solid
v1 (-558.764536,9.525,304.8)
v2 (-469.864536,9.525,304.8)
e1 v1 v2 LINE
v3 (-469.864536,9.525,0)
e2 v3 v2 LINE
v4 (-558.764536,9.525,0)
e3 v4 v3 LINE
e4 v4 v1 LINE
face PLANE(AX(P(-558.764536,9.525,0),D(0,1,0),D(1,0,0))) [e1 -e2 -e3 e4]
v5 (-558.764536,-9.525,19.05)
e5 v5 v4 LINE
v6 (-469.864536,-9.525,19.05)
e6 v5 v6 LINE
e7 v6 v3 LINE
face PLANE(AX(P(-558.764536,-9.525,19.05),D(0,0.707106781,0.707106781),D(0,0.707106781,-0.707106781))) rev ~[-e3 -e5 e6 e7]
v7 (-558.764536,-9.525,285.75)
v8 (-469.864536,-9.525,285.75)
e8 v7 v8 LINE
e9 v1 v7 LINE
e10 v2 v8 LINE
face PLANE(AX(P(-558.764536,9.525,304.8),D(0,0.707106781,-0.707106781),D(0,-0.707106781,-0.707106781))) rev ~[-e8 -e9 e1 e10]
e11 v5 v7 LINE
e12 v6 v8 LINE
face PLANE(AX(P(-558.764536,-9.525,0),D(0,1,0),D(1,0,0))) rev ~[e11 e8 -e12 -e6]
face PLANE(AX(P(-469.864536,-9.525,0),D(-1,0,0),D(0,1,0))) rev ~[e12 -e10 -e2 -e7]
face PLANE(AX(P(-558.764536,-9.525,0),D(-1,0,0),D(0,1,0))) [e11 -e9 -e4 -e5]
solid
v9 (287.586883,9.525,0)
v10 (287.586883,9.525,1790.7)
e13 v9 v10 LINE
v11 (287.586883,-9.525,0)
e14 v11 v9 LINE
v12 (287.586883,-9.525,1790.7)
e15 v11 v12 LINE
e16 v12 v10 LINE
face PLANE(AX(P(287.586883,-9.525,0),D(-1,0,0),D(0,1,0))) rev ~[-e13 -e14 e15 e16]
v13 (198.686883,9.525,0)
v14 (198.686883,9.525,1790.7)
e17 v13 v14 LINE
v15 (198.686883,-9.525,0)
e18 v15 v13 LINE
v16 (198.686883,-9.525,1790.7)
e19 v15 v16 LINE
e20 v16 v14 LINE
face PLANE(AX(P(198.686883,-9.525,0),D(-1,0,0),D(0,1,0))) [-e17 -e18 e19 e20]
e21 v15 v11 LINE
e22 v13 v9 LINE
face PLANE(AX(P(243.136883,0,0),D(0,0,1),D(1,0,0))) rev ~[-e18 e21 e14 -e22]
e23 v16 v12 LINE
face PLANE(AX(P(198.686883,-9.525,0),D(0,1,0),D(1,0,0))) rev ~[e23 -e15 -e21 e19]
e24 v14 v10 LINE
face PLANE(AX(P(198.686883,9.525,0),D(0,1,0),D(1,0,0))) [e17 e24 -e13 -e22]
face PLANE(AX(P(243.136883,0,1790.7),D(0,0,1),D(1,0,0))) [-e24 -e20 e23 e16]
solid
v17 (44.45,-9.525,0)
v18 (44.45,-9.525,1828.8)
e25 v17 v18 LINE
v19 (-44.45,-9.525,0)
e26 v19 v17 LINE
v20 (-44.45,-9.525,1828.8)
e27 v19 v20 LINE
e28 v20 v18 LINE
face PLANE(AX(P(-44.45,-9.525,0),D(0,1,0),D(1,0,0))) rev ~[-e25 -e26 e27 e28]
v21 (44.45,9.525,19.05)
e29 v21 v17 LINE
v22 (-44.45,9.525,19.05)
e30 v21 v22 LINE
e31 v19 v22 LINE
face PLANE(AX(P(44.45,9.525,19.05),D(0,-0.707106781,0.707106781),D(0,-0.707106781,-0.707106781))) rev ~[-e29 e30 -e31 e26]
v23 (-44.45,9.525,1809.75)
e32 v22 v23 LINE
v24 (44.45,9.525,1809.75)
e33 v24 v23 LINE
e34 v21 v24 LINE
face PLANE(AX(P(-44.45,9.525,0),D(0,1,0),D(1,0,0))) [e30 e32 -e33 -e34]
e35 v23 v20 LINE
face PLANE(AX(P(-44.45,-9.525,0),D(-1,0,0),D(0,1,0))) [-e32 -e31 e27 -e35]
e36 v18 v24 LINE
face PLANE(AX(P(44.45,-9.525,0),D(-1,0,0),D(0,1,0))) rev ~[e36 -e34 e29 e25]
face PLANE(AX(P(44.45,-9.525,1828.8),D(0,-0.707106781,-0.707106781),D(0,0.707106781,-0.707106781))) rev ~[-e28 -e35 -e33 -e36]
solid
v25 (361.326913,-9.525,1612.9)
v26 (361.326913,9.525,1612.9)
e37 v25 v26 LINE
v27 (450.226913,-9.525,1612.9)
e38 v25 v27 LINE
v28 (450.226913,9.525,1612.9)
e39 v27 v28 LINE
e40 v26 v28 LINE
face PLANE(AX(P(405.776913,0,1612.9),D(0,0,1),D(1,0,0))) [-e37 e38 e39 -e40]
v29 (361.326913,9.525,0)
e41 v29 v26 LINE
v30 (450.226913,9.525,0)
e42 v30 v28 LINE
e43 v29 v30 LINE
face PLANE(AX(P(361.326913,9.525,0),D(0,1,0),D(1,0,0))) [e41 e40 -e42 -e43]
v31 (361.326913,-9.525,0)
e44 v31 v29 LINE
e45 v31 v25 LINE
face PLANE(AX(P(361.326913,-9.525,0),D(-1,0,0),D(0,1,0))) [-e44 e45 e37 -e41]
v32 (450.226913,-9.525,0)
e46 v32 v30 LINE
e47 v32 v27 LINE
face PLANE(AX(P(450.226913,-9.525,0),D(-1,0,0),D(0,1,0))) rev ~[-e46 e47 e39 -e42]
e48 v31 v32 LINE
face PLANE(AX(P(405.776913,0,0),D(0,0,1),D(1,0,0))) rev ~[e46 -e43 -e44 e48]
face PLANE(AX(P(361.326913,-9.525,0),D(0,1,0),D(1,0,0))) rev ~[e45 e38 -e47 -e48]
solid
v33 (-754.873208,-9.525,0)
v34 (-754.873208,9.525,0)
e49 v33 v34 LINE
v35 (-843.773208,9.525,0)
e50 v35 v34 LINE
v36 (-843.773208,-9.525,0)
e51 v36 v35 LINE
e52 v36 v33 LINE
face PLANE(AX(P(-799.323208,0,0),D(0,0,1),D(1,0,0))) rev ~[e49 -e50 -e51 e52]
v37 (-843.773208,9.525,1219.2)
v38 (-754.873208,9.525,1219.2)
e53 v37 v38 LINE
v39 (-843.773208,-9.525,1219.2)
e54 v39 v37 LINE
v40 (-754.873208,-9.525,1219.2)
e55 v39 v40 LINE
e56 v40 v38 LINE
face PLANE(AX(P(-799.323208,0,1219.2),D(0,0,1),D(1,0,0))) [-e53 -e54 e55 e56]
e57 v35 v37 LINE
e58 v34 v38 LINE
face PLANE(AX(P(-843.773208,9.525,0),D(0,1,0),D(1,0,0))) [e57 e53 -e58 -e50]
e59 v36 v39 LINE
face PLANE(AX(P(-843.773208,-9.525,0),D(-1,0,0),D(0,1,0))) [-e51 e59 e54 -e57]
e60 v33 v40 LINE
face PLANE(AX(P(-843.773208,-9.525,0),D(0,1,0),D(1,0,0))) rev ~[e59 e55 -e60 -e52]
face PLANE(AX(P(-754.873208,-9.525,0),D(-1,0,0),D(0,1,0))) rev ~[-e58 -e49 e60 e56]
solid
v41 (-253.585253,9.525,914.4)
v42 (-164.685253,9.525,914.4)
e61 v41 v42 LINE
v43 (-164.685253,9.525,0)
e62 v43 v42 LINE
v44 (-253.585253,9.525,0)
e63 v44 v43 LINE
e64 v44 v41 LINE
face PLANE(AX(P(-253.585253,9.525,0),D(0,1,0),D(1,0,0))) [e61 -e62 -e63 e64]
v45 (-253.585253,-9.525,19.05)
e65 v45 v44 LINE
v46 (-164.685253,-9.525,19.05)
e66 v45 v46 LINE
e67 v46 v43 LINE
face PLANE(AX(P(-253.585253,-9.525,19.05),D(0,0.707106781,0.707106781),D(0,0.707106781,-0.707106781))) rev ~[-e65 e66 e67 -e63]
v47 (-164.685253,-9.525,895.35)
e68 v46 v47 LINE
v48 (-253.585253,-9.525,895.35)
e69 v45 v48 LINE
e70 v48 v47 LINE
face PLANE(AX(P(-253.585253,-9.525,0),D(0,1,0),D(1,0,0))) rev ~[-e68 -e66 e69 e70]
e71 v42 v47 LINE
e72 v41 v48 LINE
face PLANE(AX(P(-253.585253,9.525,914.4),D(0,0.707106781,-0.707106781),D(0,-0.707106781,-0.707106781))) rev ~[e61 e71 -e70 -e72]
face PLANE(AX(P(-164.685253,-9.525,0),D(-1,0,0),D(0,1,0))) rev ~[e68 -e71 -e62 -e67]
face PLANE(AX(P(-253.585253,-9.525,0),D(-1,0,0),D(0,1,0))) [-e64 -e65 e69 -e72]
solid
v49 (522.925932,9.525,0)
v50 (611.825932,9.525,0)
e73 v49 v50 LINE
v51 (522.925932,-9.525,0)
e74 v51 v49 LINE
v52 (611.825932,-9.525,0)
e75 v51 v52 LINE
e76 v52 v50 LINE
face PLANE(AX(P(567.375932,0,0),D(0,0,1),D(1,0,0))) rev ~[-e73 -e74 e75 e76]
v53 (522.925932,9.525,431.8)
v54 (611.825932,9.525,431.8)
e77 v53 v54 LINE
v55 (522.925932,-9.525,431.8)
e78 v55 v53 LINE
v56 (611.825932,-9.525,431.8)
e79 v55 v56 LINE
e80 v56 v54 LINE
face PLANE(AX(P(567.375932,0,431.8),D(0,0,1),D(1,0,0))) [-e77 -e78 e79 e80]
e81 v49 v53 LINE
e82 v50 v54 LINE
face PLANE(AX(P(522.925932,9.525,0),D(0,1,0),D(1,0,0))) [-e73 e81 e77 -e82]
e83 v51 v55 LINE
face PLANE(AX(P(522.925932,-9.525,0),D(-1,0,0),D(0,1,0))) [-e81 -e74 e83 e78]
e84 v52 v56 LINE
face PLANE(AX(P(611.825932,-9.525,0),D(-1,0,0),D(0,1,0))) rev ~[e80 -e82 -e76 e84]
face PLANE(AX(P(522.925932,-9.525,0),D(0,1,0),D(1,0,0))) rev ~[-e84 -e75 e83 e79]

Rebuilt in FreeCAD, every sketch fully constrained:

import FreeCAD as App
import Part
import Sketcher

V = App.Vector
Q = App.Units.Quantity


def add_polygon(sketch, points):
    """Adds a closed chain of lines whose ends are joined by coincident constraints."""
    first, n = sketch.GeometryCount, len(points)
    for a, b in zip(points, points[1:] + points[:1]):
        sketch.addGeometry(Part.LineSegment(App.Vector(*a, 0), App.Vector(*b, 0)), False)
    for i in range(n):
        sketch.addConstraint(Sketcher.Constraint("Coincident", first + i, 2, first + (i + 1) % n, 1))

doc = App.newDocument("Part")
params = doc.addObject("Spreadsheet::Sheet", "Params")
for row, (alias, value) in enumerate([
    ("sketch1_width", "3.5 in"),
    ("sketch1_height", "0.75 in"),
    ("pad1_length", "72 in"),
    ("sketch2_width", "0.75 in"),
    ("pocket1_length", "413.46128 mm"),
    ("sketch3_width", "3.5 in"),
    ("sketch3_height", "0.75 in"),
    ("pad2_length", "36 in"),
    ("sketch4_width", "0.75 in"),
    ("pocket2_length", "204.40578 mm"),
    ("sketch5_width", "3.5 in"),
    ("sketch5_height", "0.75 in"),
    ("pad3_length", "70.5 in"),
    ("sketch6_width", "3.5 in"),
    ("sketch6_height", "0.75 in"),
    ("pad4_length", "12 in"),
    ("sketch7_width", "0.75 in"),
    ("pocket3_length", "205.58275 mm"),
    ("sketch8_width", "3.5 in"),
    ("sketch8_height", "0.75 in"),
    ("pad5_length", "63.5 in"),
    ("sketch9_width", "3.5 in"),
    ("sketch9_height", "0.75 in"),
    ("pad6_length", "48 in"),
    ("sketch10_width", "3.5 in"),
    ("sketch10_height", "0.75 in"),
    ("pad7_length", "17 in"),
], start=1):
    params.set(f"A{row}", alias)
    params.set(f"B{row}", "=" + value)
    params.setAlias(f"B{row}", alias)

body = doc.addObject("PartDesign::Body", "Body")

# Sketch on XY plane
sketch1 = body.newObject("Sketcher::SketchObject", "Sketch")
sketch1.AttachmentSupport = (doc.getObject("XY_Plane"), [""])
sketch1.MapMode = "FlatFace"
add_polygon(sketch1, [(-44, 10), (-44, -10), (44, -10), (44, 10)])  # lines 0-3
sketch1.addConstraint([
    Sketcher.Constraint("Vertical", 0),
    Sketcher.Constraint("Horizontal", 1),
    Sketcher.Constraint("Vertical", 2),
    Sketcher.Constraint("Horizontal", 3),
    Sketcher.Constraint("Symmetric", 0, 2, 2, 2, -1, 1),
    Sketcher.Constraint("DistanceX", 1, 1, 1, 2, Q("3.5 in")),
    Sketcher.Constraint("DistanceY", 0, 2, 0, 1, Q("0.75 in")),
])
sketch1.setExpression("Constraints[9]", "Params.sketch1_width")
sketch1.setExpression("Constraints[10]", "Params.sketch1_height")
pad1 = body.newObject("PartDesign::Pad", "Pad")
pad1.Profile = sketch1
pad1.setExpression("Length", "Params.pad1_length")

# Sketch on YZ plane
sketch2 = body.newObject("Sketcher::SketchObject", "Sketch001")
sketch2.AttachmentSupport = (doc.getObject("YZ_Plane"), [""])
sketch2.MapMode = "FlatFace"
sketch2.AttachmentOffset = App.Placement(V(0, 0, 1.75 * 25.4), App.Rotation())
add_polygon(sketch2, [(10, 1829), (-10, 1829), (10, 1810)])  # lines 0-2
add_polygon(sketch2, [(10, 19), (-10, 0), (10, 0)])  # lines 3-5
sketch2.addConstraint([
    Sketcher.Constraint("Horizontal", 0),
    Sketcher.Constraint("Vertical", 2),
    Sketcher.Constraint("Horizontal", 4),
    Sketcher.Constraint("Vertical", 5),
    Sketcher.Constraint("Symmetric", 3, 2, 4, 2, -1, 1),
    Sketcher.Constraint("Perpendicular", 1, 3),
    Sketcher.Constraint("Vertical", 0, 2, 3, 2),
    Sketcher.Constraint("Vertical", 2, 2, 4, 2),
    Sketcher.Constraint("Equal", 4, 2),
    Sketcher.Constraint("DistanceY", -1, 1, 0, 2, Q("72 in")),
    Sketcher.Constraint("DistanceX", 0, 2, 0, 1, Q("0.75 in")),
])
sketch2.setExpression("Constraints[16]", "Params.sketch2_width")
pocket1 = body.newObject("PartDesign::Pocket", "Pocket")
pocket1.Profile = sketch2
pocket1.setExpression("Length", "Params.pocket1_length")
body2 = doc.addObject("PartDesign::Body", "Body001")

# Sketch on XY plane
sketch3 = body2.newObject("Sketcher::SketchObject", "Sketch002")
sketch3.AttachmentSupport = (doc.getObject("XY_Plane001"), [""])
sketch3.MapMode = "FlatFace"
add_polygon(sketch3, [(-254, 10), (-254, -10), (-165, -10), (-165, 10)])  # lines 0-3
sketch3.addConstraint([
    Sketcher.Constraint("Vertical", 0),
    Sketcher.Constraint("Horizontal", 1),
    Sketcher.Constraint("Vertical", 2),
    Sketcher.Constraint("Horizontal", 3),
    Sketcher.Constraint("DistanceX", 1, 1, 1, 2, Q("3.5 in")),
    Sketcher.Constraint("DistanceY", 0, 2, 0, 1, Q("0.75 in")),
    Sketcher.Constraint("DistanceY", 0, 2, -1, 1, Q("0.375 in")),
    Sketcher.Constraint("DistanceX", 0, 2, -1, 1, Q("253.585253 mm")),
])
sketch3.setExpression("Constraints[8]", "Params.sketch3_width")
sketch3.setExpression("Constraints[9]", "Params.sketch3_height")
pad2 = body2.newObject("PartDesign::Pad", "Pad001")
pad2.Profile = sketch3
pad2.setExpression("Length", "Params.pad2_length")

# Sketch on YZ plane
sketch4 = body2.newObject("Sketcher::SketchObject", "Sketch003")
sketch4.AttachmentSupport = (doc.getObject("YZ_Plane001"), [""])
sketch4.MapMode = "FlatFace"
sketch4.AttachmentOffset = App.Placement(V(0, 0, -253.585253), App.Rotation())
add_polygon(sketch4, [(-10, 914), (10, 914), (-10, 895)])  # lines 0-2
add_polygon(sketch4, [(-10, 19), (10, 0), (-10, 0)])  # lines 3-5
sketch4.addConstraint([
    Sketcher.Constraint("Horizontal", 0),
    Sketcher.Constraint("Vertical", 2),
    Sketcher.Constraint("Horizontal", 4),
    Sketcher.Constraint("Vertical", 5),
    Sketcher.Constraint("Symmetric", 3, 2, 4, 2, -1, 1),
    Sketcher.Constraint("Perpendicular", 1, 3),
    Sketcher.Constraint("Vertical", 0, 2, 3, 2),
    Sketcher.Constraint("Vertical", 2, 2, 4, 2),
    Sketcher.Constraint("Equal", 4, 2),
    Sketcher.Constraint("DistanceY", -1, 1, 0, 2, Q("36 in")),
    Sketcher.Constraint("DistanceX", 0, 1, 0, 2, Q("0.75 in")),
])
sketch4.setExpression("Constraints[16]", "Params.sketch4_width")
pocket2 = body2.newObject("PartDesign::Pocket", "Pocket001")
pocket2.Profile = sketch4
pocket2.setExpression("Length", "Params.pocket2_length")
pocket2.Reversed = True
body3 = doc.addObject("PartDesign::Body", "Body002")

# Sketch on XY plane
sketch5 = body3.newObject("Sketcher::SketchObject", "Sketch004")
sketch5.AttachmentSupport = (doc.getObject("XY_Plane002"), [""])
sketch5.MapMode = "FlatFace"
add_polygon(sketch5, [(199, 10), (199, -10), (288, -10), (288, 10)])  # lines 0-3
sketch5.addConstraint([
    Sketcher.Constraint("Vertical", 0),
    Sketcher.Constraint("Horizontal", 1),
    Sketcher.Constraint("Vertical", 2),
    Sketcher.Constraint("Horizontal", 3),
    Sketcher.Constraint("DistanceX", 1, 1, 1, 2, Q("3.5 in")),
    Sketcher.Constraint("DistanceY", 0, 2, 0, 1, Q("0.75 in")),
    Sketcher.Constraint("DistanceY", 0, 2, -1, 1, Q("0.375 in")),
    Sketcher.Constraint("DistanceX", -1, 1, 0, 2, Q("198.686883 mm")),
])
sketch5.setExpression("Constraints[8]", "Params.sketch5_width")
sketch5.setExpression("Constraints[9]", "Params.sketch5_height")
pad3 = body3.newObject("PartDesign::Pad", "Pad002")
pad3.Profile = sketch5
pad3.setExpression("Length", "Params.pad3_length")
body4 = doc.addObject("PartDesign::Body", "Body003")

# Sketch on XY plane
sketch6 = body4.newObject("Sketcher::SketchObject", "Sketch005")
sketch6.AttachmentSupport = (doc.getObject("XY_Plane003"), [""])
sketch6.MapMode = "FlatFace"
add_polygon(sketch6, [(-559, 10), (-559, -10), (-470, -10), (-470, 10)])  # lines 0-3
sketch6.addConstraint([
    Sketcher.Constraint("Vertical", 0),
    Sketcher.Constraint("Horizontal", 1),
    Sketcher.Constraint("Vertical", 2),
    Sketcher.Constraint("Horizontal", 3),
    Sketcher.Constraint("DistanceX", 1, 1, 1, 2, Q("3.5 in")),
    Sketcher.Constraint("DistanceY", 0, 2, 0, 1, Q("0.75 in")),
    Sketcher.Constraint("DistanceY", 0, 2, -1, 1, Q("0.375 in")),
    Sketcher.Constraint("DistanceX", 0, 2, -1, 1, Q("558.764536 mm")),
])
sketch6.setExpression("Constraints[8]", "Params.sketch6_width")
sketch6.setExpression("Constraints[9]", "Params.sketch6_height")
pad4 = body4.newObject("PartDesign::Pad", "Pad003")
pad4.Profile = sketch6
pad4.setExpression("Length", "Params.pad4_length")

# Sketch on YZ plane
sketch7 = body4.newObject("Sketcher::SketchObject", "Sketch006")
sketch7.AttachmentSupport = (doc.getObject("YZ_Plane003"), [""])
sketch7.MapMode = "FlatFace"
sketch7.AttachmentOffset = App.Placement(V(0, 0, -558.764536), App.Rotation())
add_polygon(sketch7, [(-10, 19), (10, 0), (-10, 0)])  # lines 0-2
add_polygon(sketch7, [(-10, 305), (10, 305), (-10, 286)])  # lines 3-5
sketch7.addConstraint([
    Sketcher.Constraint("Horizontal", 1),
    Sketcher.Constraint("Vertical", 2),
    Sketcher.Constraint("Horizontal", 3),
    Sketcher.Constraint("Vertical", 5),
    Sketcher.Constraint("Symmetric", 0, 2, 1, 2, -1, 1),
    Sketcher.Constraint("Perpendicular", 0, 4),
    Sketcher.Constraint("Vertical", 0, 2, 3, 2),
    Sketcher.Constraint("Vertical", 2, 2, 4, 2),
    Sketcher.Constraint("Equal", 3, 2),
    Sketcher.Constraint("DistanceY", -1, 1, 3, 2, Q("12 in")),
    Sketcher.Constraint("DistanceX", 1, 2, 1, 1, Q("0.75 in")),
])
sketch7.setExpression("Constraints[16]", "Params.sketch7_width")
pocket3 = body4.newObject("PartDesign::Pocket", "Pocket002")
pocket3.Profile = sketch7
pocket3.setExpression("Length", "Params.pocket3_length")
pocket3.Reversed = True
body5 = doc.addObject("PartDesign::Body", "Body004")

# Sketch on XY plane
sketch8 = body5.newObject("Sketcher::SketchObject", "Sketch007")
sketch8.AttachmentSupport = (doc.getObject("XY_Plane004"), [""])
sketch8.MapMode = "FlatFace"
add_polygon(sketch8, [(361, 10), (361, -10), (450, -10), (450, 10)])  # lines 0-3
sketch8.addConstraint([
    Sketcher.Constraint("Vertical", 0),
    Sketcher.Constraint("Horizontal", 1),
    Sketcher.Constraint("Vertical", 2),
    Sketcher.Constraint("Horizontal", 3),
    Sketcher.Constraint("DistanceX", 1, 1, 1, 2, Q("3.5 in")),
    Sketcher.Constraint("DistanceY", 0, 2, 0, 1, Q("0.75 in")),
    Sketcher.Constraint("DistanceY", 0, 2, -1, 1, Q("0.375 in")),
    Sketcher.Constraint("DistanceX", -1, 1, 0, 2, Q("361.326913 mm")),
])
sketch8.setExpression("Constraints[8]", "Params.sketch8_width")
sketch8.setExpression("Constraints[9]", "Params.sketch8_height")
pad5 = body5.newObject("PartDesign::Pad", "Pad004")
pad5.Profile = sketch8
pad5.setExpression("Length", "Params.pad5_length")
body6 = doc.addObject("PartDesign::Body", "Body005")

# Sketch on XY plane
sketch9 = body6.newObject("Sketcher::SketchObject", "Sketch008")
sketch9.AttachmentSupport = (doc.getObject("XY_Plane005"), [""])
sketch9.MapMode = "FlatFace"
add_polygon(sketch9, [(-844, 10), (-844, -10), (-755, -10), (-755, 10)])  # lines 0-3
sketch9.addConstraint([
    Sketcher.Constraint("Vertical", 0),
    Sketcher.Constraint("Horizontal", 1),
    Sketcher.Constraint("Vertical", 2),
    Sketcher.Constraint("Horizontal", 3),
    Sketcher.Constraint("DistanceX", 1, 1, 1, 2, Q("3.5 in")),
    Sketcher.Constraint("DistanceY", 0, 2, 0, 1, Q("0.75 in")),
    Sketcher.Constraint("DistanceY", 0, 2, -1, 1, Q("0.375 in")),
    Sketcher.Constraint("DistanceX", 0, 2, -1, 1, Q("843.773208 mm")),
])
sketch9.setExpression("Constraints[8]", "Params.sketch9_width")
sketch9.setExpression("Constraints[9]", "Params.sketch9_height")
pad6 = body6.newObject("PartDesign::Pad", "Pad005")
pad6.Profile = sketch9
pad6.setExpression("Length", "Params.pad6_length")
body7 = doc.addObject("PartDesign::Body", "Body006")

# Sketch on XY plane
sketch10 = body7.newObject("Sketcher::SketchObject", "Sketch009")
sketch10.AttachmentSupport = (doc.getObject("XY_Plane006"), [""])
sketch10.MapMode = "FlatFace"
add_polygon(sketch10, [(523, 10), (523, -10), (612, -10), (612, 10)])  # lines 0-3
sketch10.addConstraint([
    Sketcher.Constraint("Vertical", 0),
    Sketcher.Constraint("Horizontal", 1),
    Sketcher.Constraint("Vertical", 2),
    Sketcher.Constraint("Horizontal", 3),
    Sketcher.Constraint("DistanceX", 1, 1, 1, 2, Q("3.5 in")),
    Sketcher.Constraint("DistanceY", 0, 2, 0, 1, Q("0.75 in")),
    Sketcher.Constraint("DistanceY", 0, 2, -1, 1, Q("0.375 in")),
    Sketcher.Constraint("DistanceX", -1, 1, 0, 2, Q("522.925932 mm")),
])
sketch10.setExpression("Constraints[8]", "Params.sketch10_width")
sketch10.setExpression("Constraints[9]", "Params.sketch10_height")
pad7 = body7.newObject("PartDesign::Pad", "Pad006")
pad7.Profile = sketch10
pad7.setExpression("Length", "Params.pad7_length")

doc.recompute()
